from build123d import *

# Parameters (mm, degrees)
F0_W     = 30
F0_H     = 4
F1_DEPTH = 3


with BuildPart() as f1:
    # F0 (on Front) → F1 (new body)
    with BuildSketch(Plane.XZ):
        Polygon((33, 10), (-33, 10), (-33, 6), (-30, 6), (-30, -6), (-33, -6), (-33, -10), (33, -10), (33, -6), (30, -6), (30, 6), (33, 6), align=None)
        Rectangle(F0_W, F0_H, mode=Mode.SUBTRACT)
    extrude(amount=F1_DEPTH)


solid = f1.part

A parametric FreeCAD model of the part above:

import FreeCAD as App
import Part
import Sketcher


def add_polygon(sketch, points):
    """Adds a closed chain of lines whose ends are joined by coincident constraints."""
    first, n = sketch.GeometryCount, len(points)
    for a, b in zip(points, points[1:] + points[:1]):
        sketch.addGeometry(Part.LineSegment(App.Vector(*a, 0), App.Vector(*b, 0)), False)
    for i in range(n):
        sketch.addConstraint(Sketcher.Constraint("Coincident", first + i, 2, first + (i + 1) % n, 1))

doc = App.newDocument("Part")
body = doc.addObject("PartDesign::Body", "Body")

# Sketch on XZ plane
sketch1 = body.newObject("Sketcher::SketchObject", "Sketch")
sketch1.AttachmentSupport = (doc.getObject("XZ_Plane"), [""])
sketch1.MapMode = "FlatFace"
add_polygon(sketch1, [(33, 10), (-33, 10), (-33, 6), (-30, 6), (-30, -6), (-33, -6), (-33, -10), (33, -10), (33, -6), (30, -6), (30, 6), (33, 6)])  # lines 0-11
add_polygon(sketch1, [(15, -2), (-15, -2), (-15, 2), (15, 2)])  # lines 12-15
sketch1.addConstraint(Sketcher.Constraint("Horizontal", 0))
sketch1.addConstraint(Sketcher.Constraint("Vertical", 1))
sketch1.addConstraint(Sketcher.Constraint("Horizontal", 2))
sketch1.addConstraint(Sketcher.Constraint("Vertical", 3))
sketch1.addConstraint(Sketcher.Constraint("Horizontal", 4))
sketch1.addConstraint(Sketcher.Constraint("Vertical", 5))
sketch1.addConstraint(Sketcher.Constraint("Horizontal", 6))
sketch1.addConstraint(Sketcher.Constraint("Vertical", 7))
sketch1.addConstraint(Sketcher.Constraint("Horizontal", 8))
sketch1.addConstraint(Sketcher.Constraint("Vertical", 9))
sketch1.addConstraint(Sketcher.Constraint("Horizontal", 10))
sketch1.addConstraint(Sketcher.Constraint("Vertical", 11))
sketch1.addConstraint(Sketcher.Constraint("Horizontal", 12))
sketch1.addConstraint(Sketcher.Constraint("Vertical", 13))
sketch1.addConstraint(Sketcher.Constraint("Horizontal", 14))
sketch1.addConstraint(Sketcher.Constraint("Vertical", 15))
sketch1.addConstraint(Sketcher.Constraint("Symmetric", 0, 2, 6, 2, -1, 1))
sketch1.addConstraint(Sketcher.Constraint("Symmetric", 2, 2, 8, 2, -1, 1))
sketch1.addConstraint(Sketcher.Constraint("Symmetric", 4, 2, 10, 2, -1, 1))
sketch1.addConstraint(Sketcher.Constraint("Symmetric", 12, 2, 14, 2, -1, 1))
sketch1.addConstraint(Sketcher.Constraint("Symmetric", 4, 2, 7, 2, -2))
sketch1.addConstraint(Sketcher.Constraint("Equal", 11, 13))
sketch1.addConstraint(Sketcher.Constraint("DistanceX", 0, 2, 0, 1, 66.0))
sketch1.addConstraint(Sketcher.Constraint("DistanceX", 2, 1, 2, 2, 3.0))
sketch1.addConstraint(Sketcher.Constraint("DistanceX", 12, 2, 12, 1, 30.0))
sketch1.addConstraint(Sketcher.Constraint("DistanceY", 1, 2, 1, 1, 4.0))
sketch1.addConstraint(Sketcher.Constraint("DistanceY", 3, 2, 3, 1, 12.0))
pad1 = body.newObject("PartDesign::Pad", "Pad")
pad1.Profile = sketch1
pad1.Length = 3

doc.recompute()
